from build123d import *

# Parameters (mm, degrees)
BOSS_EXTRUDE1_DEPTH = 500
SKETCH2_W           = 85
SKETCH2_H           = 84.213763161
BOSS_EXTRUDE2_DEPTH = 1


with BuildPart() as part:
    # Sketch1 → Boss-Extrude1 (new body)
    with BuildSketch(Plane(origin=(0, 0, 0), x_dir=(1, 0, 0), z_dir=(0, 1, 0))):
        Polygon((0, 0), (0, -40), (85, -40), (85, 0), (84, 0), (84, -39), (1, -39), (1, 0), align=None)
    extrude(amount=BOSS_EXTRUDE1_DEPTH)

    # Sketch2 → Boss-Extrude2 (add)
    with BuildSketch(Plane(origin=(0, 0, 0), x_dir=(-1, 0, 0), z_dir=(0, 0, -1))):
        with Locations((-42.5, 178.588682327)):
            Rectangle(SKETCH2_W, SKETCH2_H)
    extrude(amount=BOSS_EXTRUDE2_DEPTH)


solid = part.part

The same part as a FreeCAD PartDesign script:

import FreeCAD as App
import Part
import Sketcher

V = App.Vector
Q = App.Units.Quantity

doc = App.newDocument("Part")
body = doc.addObject("PartDesign::Body", "Body")

# Sketch on XZ plane
sketch1 = body.newObject("Sketcher::SketchObject", "Sketch")
sketch1.AttachmentSupport = (doc.getObject("XZ_Plane"), [""])
sketch1.MapMode = "FlatFace"
sketch1.addGeometry(Part.LineSegment(V(0, 0, 0), V(0, 40, 0)), False)
sketch1.addGeometry(Part.LineSegment(V(0, 40, 0), V(85, 40, 0)), False)
sketch1.addGeometry(Part.LineSegment(V(85, 40, 0), V(85, 0, 0)), False)
sketch1.addGeometry(Part.LineSegment(V(85, 0, 0), V(84, 0, 0)), False)
sketch1.addGeometry(Part.LineSegment(V(84, 0, 0), V(84, 39, 0)), False)
sketch1.addGeometry(Part.LineSegment(V(84, 39, 0), V(1, 39, 0)), False)
sketch1.addGeometry(Part.LineSegment(V(1, 39, 0), V(1, 0, 0)), False)
sketch1.addGeometry(Part.LineSegment(V(1, 0, 0), V(0, 0, 0)), False)
sketch1.addConstraint(Sketcher.Constraint("Coincident", 0, 2, 1, 1))
sketch1.addConstraint(Sketcher.Constraint("Coincident", 1, 2, 2, 1))
sketch1.addConstraint(Sketcher.Constraint("Coincident", 2, 2, 3, 1))
sketch1.addConstraint(Sketcher.Constraint("Coincident", 3, 2, 4, 1))
sketch1.addConstraint(Sketcher.Constraint("Coincident", 4, 2, 5, 1))
sketch1.addConstraint(Sketcher.Constraint("Coincident", 5, 2, 6, 1))
sketch1.addConstraint(Sketcher.Constraint("Coincident", 6, 2, 7, 1))
sketch1.addConstraint(Sketcher.Constraint("Coincident", 7, 2, 0, 1))
sketch1.addConstraint(Sketcher.Constraint("Vertical", 0))
sketch1.addConstraint(Sketcher.Constraint("Horizontal", 1))
sketch1.addConstraint(Sketcher.Constraint("Vertical", 2))
sketch1.addConstraint(Sketcher.Constraint("Horizontal", 3))
sketch1.addConstraint(Sketcher.Constraint("Vertical", 4))
sketch1.addConstraint(Sketcher.Constraint("Horizontal", 5))
sketch1.addConstraint(Sketcher.Constraint("Vertical", 6))
sketch1.addConstraint(Sketcher.Constraint("Horizontal", 7))
sketch1.addConstraint(Sketcher.Constraint("Coincident", 7, 2, -1, 1))
sketch1.addConstraint(Sketcher.Constraint("PointOnObject", 2, 2, -1))
sketch1.addConstraint(Sketcher.Constraint("Equal", 3, 7))
sketch1.addConstraint(Sketcher.Constraint("DistanceX", 1, 1, 1, 2, Q("85 mm")))
sketch1.addConstraint(Sketcher.Constraint("DistanceX", 3, 2, 3, 1, Q("1 mm")))
sketch1.addConstraint(Sketcher.Constraint("DistanceY", 0, 1, 0, 2, Q("40 mm")))
sketch1.addConstraint(Sketcher.Constraint("DistanceY", 4, 1, 4, 2, Q("39 mm")))
pad1 = body.newObject("PartDesign::Pad", "Pad")
pad1.Profile = sketch1
pad1.Length = 500
pad1.Reversed = True

# Sketch on XY plane
sketch2 = body.newObject("Sketcher::SketchObject", "Sketch001")
sketch2.AttachmentSupport = (doc.getObject("XY_Plane"), [""])
sketch2.MapMode = "FlatFace"
sketch2.addGeometry(Part.LineSegment(V(85, 221, 0), V(85, 136, 0)), False)
sketch2.addGeometry(Part.LineSegment(V(85, 136, 0), V(0, 136, 0)), False)
sketch2.addGeometry(Part.LineSegment(V(0, 136, 0), V(0, 221, 0)), False)
sketch2.addGeometry(Part.LineSegment(V(0, 221, 0), V(85, 221, 0)), False)
sketch2.addConstraint(Sketcher.Constraint("Coincident", 0, 2, 1, 1))
sketch2.addConstraint(Sketcher.Constraint("Coincident", 1, 2, 2, 1))
sketch2.addConstraint(Sketcher.Constraint("Coincident", 2, 2, 3, 1))
sketch2.addConstraint(Sketcher.Constraint("Coincident", 3, 2, 0, 1))
sketch2.addConstraint(Sketcher.Constraint("Vertical", 0))
sketch2.addConstraint(Sketcher.Constraint("Horizontal", 1))
sketch2.addConstraint(Sketcher.Constraint("Vertical", 2))
sketch2.addConstraint(Sketcher.Constraint("Horizontal", 3))
sketch2.addConstraint(Sketcher.Constraint("PointOnObject", 1, 2, -2))
sketch2.addConstraint(Sketcher.Constraint("DistanceX", 1, 2, 1, 1, Q("85 mm")))
sketch2.addConstraint(Sketcher.Constraint("DistanceY", -1, 1, 0, 2, Q("136.481801 mm")))
sketch2.addConstraint(Sketcher.Constraint("DistanceY", 0, 2, 0, 1, Q("84.213763 mm")))
pad2 = body.newObject("PartDesign::Pad", "Pad001")
pad2.Profile = sketch2
pad2.Length = 1
pad2.Reversed = True

doc.recompute()
